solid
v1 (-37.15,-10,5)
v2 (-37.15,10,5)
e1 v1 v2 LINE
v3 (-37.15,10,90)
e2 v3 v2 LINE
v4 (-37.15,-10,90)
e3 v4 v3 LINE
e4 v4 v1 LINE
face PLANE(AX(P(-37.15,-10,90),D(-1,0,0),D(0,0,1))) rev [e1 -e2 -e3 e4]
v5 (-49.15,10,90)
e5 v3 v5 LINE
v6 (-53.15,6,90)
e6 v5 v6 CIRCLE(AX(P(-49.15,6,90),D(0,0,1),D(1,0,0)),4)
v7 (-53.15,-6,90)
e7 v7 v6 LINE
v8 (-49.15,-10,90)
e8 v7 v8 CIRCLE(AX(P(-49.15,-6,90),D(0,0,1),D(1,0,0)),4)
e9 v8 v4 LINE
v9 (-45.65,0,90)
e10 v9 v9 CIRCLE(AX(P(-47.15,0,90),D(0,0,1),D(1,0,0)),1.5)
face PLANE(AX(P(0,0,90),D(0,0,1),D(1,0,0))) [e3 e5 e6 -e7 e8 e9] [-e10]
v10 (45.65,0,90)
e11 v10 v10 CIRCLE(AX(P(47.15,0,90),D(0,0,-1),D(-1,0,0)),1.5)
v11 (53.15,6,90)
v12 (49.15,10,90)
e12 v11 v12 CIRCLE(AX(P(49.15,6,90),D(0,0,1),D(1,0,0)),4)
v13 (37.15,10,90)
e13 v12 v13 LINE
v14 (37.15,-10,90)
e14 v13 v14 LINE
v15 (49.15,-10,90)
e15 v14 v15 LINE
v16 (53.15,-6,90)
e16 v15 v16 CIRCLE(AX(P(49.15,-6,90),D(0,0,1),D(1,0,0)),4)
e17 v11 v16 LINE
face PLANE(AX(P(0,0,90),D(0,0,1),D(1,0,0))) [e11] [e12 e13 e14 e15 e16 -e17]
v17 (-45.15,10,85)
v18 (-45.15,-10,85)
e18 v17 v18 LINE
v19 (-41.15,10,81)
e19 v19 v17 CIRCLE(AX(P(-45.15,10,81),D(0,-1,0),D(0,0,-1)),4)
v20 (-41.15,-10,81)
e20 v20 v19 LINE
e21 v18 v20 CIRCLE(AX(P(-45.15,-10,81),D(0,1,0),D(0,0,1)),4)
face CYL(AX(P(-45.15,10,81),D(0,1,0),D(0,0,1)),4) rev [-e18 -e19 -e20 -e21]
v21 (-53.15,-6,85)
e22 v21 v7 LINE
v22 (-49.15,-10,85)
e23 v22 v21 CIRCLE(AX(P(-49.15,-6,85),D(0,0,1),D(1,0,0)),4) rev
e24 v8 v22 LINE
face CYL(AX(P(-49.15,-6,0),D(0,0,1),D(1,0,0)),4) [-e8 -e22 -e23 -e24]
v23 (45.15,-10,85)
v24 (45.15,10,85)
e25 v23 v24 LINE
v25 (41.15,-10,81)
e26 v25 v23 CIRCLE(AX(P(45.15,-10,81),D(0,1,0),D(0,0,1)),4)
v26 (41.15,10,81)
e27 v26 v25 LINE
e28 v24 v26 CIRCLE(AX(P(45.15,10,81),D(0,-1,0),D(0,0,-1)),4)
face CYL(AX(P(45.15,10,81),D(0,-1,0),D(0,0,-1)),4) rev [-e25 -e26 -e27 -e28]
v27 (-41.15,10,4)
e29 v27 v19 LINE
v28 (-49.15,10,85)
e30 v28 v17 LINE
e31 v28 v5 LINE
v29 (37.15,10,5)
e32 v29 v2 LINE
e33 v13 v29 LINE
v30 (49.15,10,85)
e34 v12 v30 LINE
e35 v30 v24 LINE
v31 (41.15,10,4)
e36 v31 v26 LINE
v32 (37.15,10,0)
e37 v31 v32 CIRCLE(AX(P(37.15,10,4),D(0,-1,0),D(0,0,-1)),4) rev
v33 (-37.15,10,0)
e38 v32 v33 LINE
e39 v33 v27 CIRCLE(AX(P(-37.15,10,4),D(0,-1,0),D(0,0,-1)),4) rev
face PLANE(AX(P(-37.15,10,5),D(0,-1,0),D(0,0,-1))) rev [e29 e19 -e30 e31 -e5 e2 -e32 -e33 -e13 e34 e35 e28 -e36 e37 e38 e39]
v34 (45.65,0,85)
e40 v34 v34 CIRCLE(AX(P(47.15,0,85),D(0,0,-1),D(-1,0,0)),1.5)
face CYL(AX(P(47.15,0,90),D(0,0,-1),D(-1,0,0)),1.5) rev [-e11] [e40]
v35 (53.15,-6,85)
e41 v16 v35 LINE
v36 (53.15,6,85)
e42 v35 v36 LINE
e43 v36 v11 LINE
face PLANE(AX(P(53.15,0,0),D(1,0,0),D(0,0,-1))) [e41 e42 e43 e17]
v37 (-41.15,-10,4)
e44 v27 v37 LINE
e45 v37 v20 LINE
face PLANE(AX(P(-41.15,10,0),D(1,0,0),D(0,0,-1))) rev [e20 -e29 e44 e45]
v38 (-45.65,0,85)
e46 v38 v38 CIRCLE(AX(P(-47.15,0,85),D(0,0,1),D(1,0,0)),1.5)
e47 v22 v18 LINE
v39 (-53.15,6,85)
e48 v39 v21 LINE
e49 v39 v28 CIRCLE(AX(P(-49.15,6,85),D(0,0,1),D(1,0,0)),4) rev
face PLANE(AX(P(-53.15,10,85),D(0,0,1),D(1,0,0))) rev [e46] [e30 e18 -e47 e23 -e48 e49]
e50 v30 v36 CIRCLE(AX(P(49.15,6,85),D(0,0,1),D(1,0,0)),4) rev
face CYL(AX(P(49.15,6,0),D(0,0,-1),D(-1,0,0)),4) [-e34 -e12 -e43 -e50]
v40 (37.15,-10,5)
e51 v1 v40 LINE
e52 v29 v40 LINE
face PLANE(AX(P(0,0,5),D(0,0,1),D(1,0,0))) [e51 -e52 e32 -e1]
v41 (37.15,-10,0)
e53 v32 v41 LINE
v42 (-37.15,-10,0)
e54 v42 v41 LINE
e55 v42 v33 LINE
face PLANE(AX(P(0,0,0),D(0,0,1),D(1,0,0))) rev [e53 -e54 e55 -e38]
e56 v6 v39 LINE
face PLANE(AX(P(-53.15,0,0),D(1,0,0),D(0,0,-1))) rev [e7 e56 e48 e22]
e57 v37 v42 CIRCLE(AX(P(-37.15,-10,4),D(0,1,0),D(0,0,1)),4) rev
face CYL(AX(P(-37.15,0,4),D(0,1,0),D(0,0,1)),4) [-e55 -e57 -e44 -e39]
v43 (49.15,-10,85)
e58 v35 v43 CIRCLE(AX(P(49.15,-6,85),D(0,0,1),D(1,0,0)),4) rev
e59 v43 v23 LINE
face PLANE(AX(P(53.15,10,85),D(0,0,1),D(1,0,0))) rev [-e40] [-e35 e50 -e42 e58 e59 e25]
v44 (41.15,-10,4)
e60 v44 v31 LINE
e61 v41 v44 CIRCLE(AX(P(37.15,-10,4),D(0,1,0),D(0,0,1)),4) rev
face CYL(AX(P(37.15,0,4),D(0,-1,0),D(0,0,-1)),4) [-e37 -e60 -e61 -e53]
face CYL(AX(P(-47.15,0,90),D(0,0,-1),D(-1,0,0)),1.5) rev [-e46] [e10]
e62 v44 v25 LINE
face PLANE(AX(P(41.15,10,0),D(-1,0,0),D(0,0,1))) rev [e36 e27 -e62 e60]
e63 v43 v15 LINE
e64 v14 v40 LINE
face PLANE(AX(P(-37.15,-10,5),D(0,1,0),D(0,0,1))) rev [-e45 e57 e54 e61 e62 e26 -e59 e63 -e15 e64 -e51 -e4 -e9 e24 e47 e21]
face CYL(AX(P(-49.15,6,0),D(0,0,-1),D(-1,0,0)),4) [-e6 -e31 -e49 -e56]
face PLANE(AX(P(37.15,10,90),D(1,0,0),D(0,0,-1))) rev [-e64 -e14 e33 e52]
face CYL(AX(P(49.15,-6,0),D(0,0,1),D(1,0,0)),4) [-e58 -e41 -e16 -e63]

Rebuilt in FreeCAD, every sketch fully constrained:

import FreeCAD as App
import Part
import Sketcher
Q = App.Units.Quantity


def edges_at(feature, points):
    """Names of the edges that pass closest to the given points."""
    edges = feature.Shape.Edges
    near = lambda p: min(range(len(edges)), key=lambda i: edges[i].distToShape(Part.Vertex(*p))[0])
    return sorted({f"Edge{near(p) + 1}" for p in points})


def add_polygon(sketch, points):
    """Adds a closed chain of lines whose ends are joined by coincident constraints."""
    first, n = sketch.GeometryCount, len(points)
    for a, b in zip(points, points[1:] + points[:1]):
        sketch.addGeometry(Part.LineSegment(App.Vector(*a, 0), App.Vector(*b, 0)), False)
    for i in range(n):
        sketch.addConstraint(Sketcher.Constraint("Coincident", first + i, 2, first + (i + 1) % n, 1))

doc = App.newDocument("Part")
params = doc.addObject("Spreadsheet::Sheet", "Params")
for row, (alias, value) in enumerate([
    ("sketch1_height", "20 mm"),
    ("sketch1_width", "74.3 mm"),
    ("pad1_length", "5 mm"),
    ("sketch2_width", "4 mm"),
    ("sketch2_height", "20 mm"),
    ("pad2_length", "85 mm"),
    ("sketch3_width", "4 mm"),
    ("sketch3_height", "20 mm"),
    ("pad3_length", "85 mm"),
    ("sketch4_width", "4 mm"),
    ("sketch4_height", "20 mm"),
    ("pad4_length", "5 mm"),
    ("sketch5_width", "20 mm"),
    ("sketch5_height", "5 mm"),
    ("pad5_length", "12 mm"),
    ("sketch6_diameter", "3 mm"),
    ("sketch7_width", "20 mm"),
    ("sketch7_height", "5 mm"),
    ("pad6_length", "12 mm"),
    ("fillet_radius", "4 mm"),
], start=1):
    params.set(f"A{row}", alias)
    params.set(f"B{row}", "=" + value)
    params.setAlias(f"B{row}", alias)

body = doc.addObject("PartDesign::Body", "Body")

# Sketch on XY plane
sketch1 = doc.addObject("Sketcher::SketchObject", "Sketch")
body.addObject(sketch1)
sketch1.AttachmentSupport = (doc.XY_Plane, [""])
sketch1.MapMode = "FlatFace"
add_polygon(sketch1, [(-37.15, 10), (-37.15, -10), (37.15, -10), (37.15, 10)])  # lines 0-3
sketch1.addConstraint([
    Sketcher.Constraint("Vertical", 0),
    Sketcher.Constraint("Horizontal", 1),
    Sketcher.Constraint("Vertical", 2),
    Sketcher.Constraint("Horizontal", 3),
    Sketcher.Constraint("Symmetric", 0, 2, 2, 2, -1, 1),
    Sketcher.Constraint("DistanceY", 0, 2, 0, 1, Q("20 mm")),
    Sketcher.Constraint("DistanceX", 1, 1, 1, 2, Q("74.3 mm")),
])
sketch1.setExpression("Constraints[9]", "Params.sketch1_height")
sketch1.setExpression("Constraints[10]", "Params.sketch1_width")
pad1 = doc.addObject("PartDesign::Pad", "Pad")
body.addObject(pad1)
pad1.Profile = sketch1
pad1.setExpression("Length", "Params.pad1_length")
body2 = doc.addObject("PartDesign::Body", "Body001")

# Sketch on XY plane
sketch2 = doc.addObject("Sketcher::SketchObject", "Sketch001")
body2.addObject(sketch2)
sketch2.AttachmentSupport = (doc.getObject("XY_Plane001"), [""])
sketch2.MapMode = "FlatFace"
sketch2.AttachmentOffset = App.Placement(App.Vector(0, 0, 5), App.Rotation())
add_polygon(sketch2, [(-41.15, 10), (-41.15, -10), (-37.15, -10), (-37.15, 10)])  # lines 0-3
sketch2.addConstraint([
    Sketcher.Constraint("Vertical", 0),
    Sketcher.Constraint("Horizontal", 1),
    Sketcher.Constraint("Vertical", 2),
    Sketcher.Constraint("Horizontal", 3),
    Sketcher.Constraint("DistanceX", 1, 1, 1, 2, Q("4 mm")),
    Sketcher.Constraint("DistanceY", 0, 2, 0, 1, Q("20 mm")),
    Sketcher.Constraint("DistanceY", 0, 2, -1, 1, Q("10 mm")),
    Sketcher.Constraint("DistanceX", 0, 2, -1, 1, Q("41.15 mm")),
])
sketch2.setExpression("Constraints[8]", "Params.sketch2_width")
sketch2.setExpression("Constraints[9]", "Params.sketch2_height")
pad2 = doc.addObject("PartDesign::Pad", "Pad001")
body2.addObject(pad2)
pad2.Profile = sketch2
pad2.setExpression("Length", "Params.pad2_length")
body3 = doc.addObject("PartDesign::Body", "Body002")

# Sketch on XY plane
sketch3 = doc.addObject("Sketcher::SketchObject", "Sketch002")
body3.addObject(sketch3)
sketch3.AttachmentSupport = (doc.getObject("XY_Plane002"), [""])
sketch3.MapMode = "FlatFace"
sketch3.AttachmentOffset = App.Placement(App.Vector(0, 0, 5), App.Rotation())
add_polygon(sketch3, [(37.15, 10), (37.15, -10), (41.15, -10), (41.15, 10)])  # lines 0-3
sketch3.addConstraint([
    Sketcher.Constraint("Vertical", 0),
    Sketcher.Constraint("Horizontal", 1),
    Sketcher.Constraint("Vertical", 2),
    Sketcher.Constraint("Horizontal", 3),
    Sketcher.Constraint("DistanceX", 1, 1, 1, 2, Q("4 mm")),
    Sketcher.Constraint("DistanceY", 0, 2, 0, 1, Q("20 mm")),
    Sketcher.Constraint("DistanceY", 0, 2, -1, 1, Q("10 mm")),
    Sketcher.Constraint("DistanceX", -1, 1, 0, 2, Q("37.15 mm")),
])
sketch3.setExpression("Constraints[8]", "Params.sketch3_width")
sketch3.setExpression("Constraints[9]", "Params.sketch3_height")
pad3 = doc.addObject("PartDesign::Pad", "Pad002")
body3.addObject(pad3)
pad3.Profile = sketch3
pad3.setExpression("Length", "Params.pad3_length")
body.AllowCompound = True
doc.recompute()

boolean = doc.addObject("PartDesign::Boolean", "Boolean")
body.addObject(boolean)
boolean.Type = "Fuse"
boolean.addObjects([body2])
doc.recompute()

boolean2 = doc.addObject("PartDesign::Boolean", "Boolean001")
body.addObject(boolean2)
boolean2.Type = "Fuse"
boolean2.addObjects([body3])

# Sketch on XY plane
sketch4 = doc.addObject("Sketcher::SketchObject", "Sketch003")
body.addObject(sketch4)
sketch4.AttachmentSupport = (doc.XY_Plane, [""])
sketch4.MapMode = "FlatFace"
sketch4.AttachmentOffset = App.Placement(App.Vector(0, 0, 5), App.Rotation())
add_polygon(sketch4, [(41.15, 10), (41.15, -10), (37.15, -10), (37.15, 10)])  # lines 0-3
add_polygon(sketch4, [(-37.15, 10), (-37.15, -10), (-41.15, -10), (-41.15, 10)])  # lines 4-7
sketch4.addConstraint([
    Sketcher.Constraint("Vertical", 0),
    Sketcher.Constraint("Horizontal", 1),
    Sketcher.Constraint("Vertical", 2),
    Sketcher.Constraint("Horizontal", 3),
    Sketcher.Constraint("Vertical", 4),
    Sketcher.Constraint("Horizontal", 5),
    Sketcher.Constraint("Vertical", 6),
    Sketcher.Constraint("Horizontal", 7),
    Sketcher.Constraint("Symmetric", 2, 2, 4, 2, -1, 1),
    Sketcher.Constraint("Symmetric", 0, 2, 6, 2, -1, 1),
    Sketcher.Constraint("Horizontal", 1, 2, 4, 2),
    Sketcher.Constraint("DistanceX", 1, 2, 1, 1, Q("4 mm")),
    Sketcher.Constraint("DistanceY", 0, 2, 0, 1, Q("20 mm")),
    Sketcher.Constraint("DistanceX", 4, 2, 1, 2, Q("74.3 mm")),
])
sketch4.setExpression("Constraints[19]", "Params.sketch4_width")
sketch4.setExpression("Constraints[20]", "Params.sketch4_height")
pad4 = doc.addObject("PartDesign::Pad", "Pad003")
body.addObject(pad4)
pad4.Profile = sketch4
pad4.setExpression("Length", "Params.pad4_length")
pad4.Reversed = True

# Sketch on YZ plane
sketch5 = doc.addObject("Sketcher::SketchObject", "Sketch004")
body.addObject(sketch5)
sketch5.AttachmentSupport = (doc.YZ_Plane, [""])
sketch5.MapMode = "FlatFace"
sketch5.AttachmentOffset = App.Placement(App.Vector(0, 0, 41.15), App.Rotation())
add_polygon(sketch5, [(10, 90), (-10, 90), (-10, 85), (10, 85)])  # lines 0-3
sketch5.addConstraint([
    Sketcher.Constraint("Horizontal", 0),
    Sketcher.Constraint("Vertical", 1),
    Sketcher.Constraint("Horizontal", 2),
    Sketcher.Constraint("Vertical", 3),
    Sketcher.Constraint("DistanceX", 0, 2, 0, 1, Q("20 mm")),
    Sketcher.Constraint("DistanceY", 1, 2, 1, 1, Q("5 mm")),
    Sketcher.Constraint("DistanceX", 0, 2, -1, 1, Q("10 mm")),
    Sketcher.Constraint("DistanceY", -1, 1, 0, 2, Q("90 mm")),
])
sketch5.setExpression("Constraints[8]", "Params.sketch5_width")
sketch5.setExpression("Constraints[9]", "Params.sketch5_height")
pad5 = doc.addObject("PartDesign::Pad", "Pad004")
body.addObject(pad5)
pad5.Profile = sketch5
pad5.setExpression("Length", "Params.pad5_length")

# Sketch on XY plane
sketch6 = doc.addObject("Sketcher::SketchObject", "Sketch005")
body.addObject(sketch6)
sketch6.AttachmentSupport = (doc.XY_Plane, [""])
sketch6.MapMode = "FlatFace"
sketch6.AttachmentOffset = App.Placement(App.Vector(0, 0, 85), App.Rotation())
sketch6.addGeometry(Part.Circle(App.Vector(47.15, 0, 0), App.Vector(0, 0, 1), 1.5), False)
sketch6.addConstraint([
    Sketcher.Constraint("PointOnObject", 0, 3, -1),
    Sketcher.Constraint("Diameter", 0, Q("3 mm")),
    Sketcher.Constraint("DistanceX", -1, 1, 0, 3, Q("47.15 mm")),
])
sketch6.setExpression("Constraints[1]", "Params.sketch6_diameter")
pocket1 = doc.addObject("PartDesign::Pocket", "Pocket")
body.addObject(pocket1)
pocket1.Profile = sketch6
pocket1.Type = "ThroughAll"
pocket1.Reversed = True

# Sketch on YZ plane
sketch7 = doc.addObject("Sketcher::SketchObject", "Sketch006")
body.addObject(sketch7)
sketch7.AttachmentSupport = (doc.YZ_Plane, [""])
sketch7.MapMode = "FlatFace"
sketch7.AttachmentOffset = App.Placement(App.Vector(0, 0, -41.15), App.Rotation())
add_polygon(sketch7, [(10, 85), (-10, 85), (-10, 90), (10, 90)])  # lines 0-3
sketch7.addConstraint([
    Sketcher.Constraint("Horizontal", 0),
    Sketcher.Constraint("Vertical", 1),
    Sketcher.Constraint("Horizontal", 2),
    Sketcher.Constraint("Vertical", 3),
    Sketcher.Constraint("DistanceX", 0, 2, 0, 1, Q("20 mm")),
    Sketcher.Constraint("DistanceY", 1, 1, 1, 2, Q("5 mm")),
    Sketcher.Constraint("DistanceX", 0, 2, -1, 1, Q("10 mm")),
    Sketcher.Constraint("DistanceY", -1, 1, 0, 2, Q("85 mm")),
])
sketch7.setExpression("Constraints[8]", "Params.sketch7_width")
sketch7.setExpression("Constraints[9]", "Params.sketch7_height")
pad6 = doc.addObject("PartDesign::Pad", "Pad005")
body.addObject(pad6)
pad6.Profile = sketch7
pad6.setExpression("Length", "Params.pad6_length")
pad6.Reversed = True
doc.recompute()

mirrored = doc.addObject("PartDesign::Mirrored", "Mirrored")
body.addObject(mirrored)
mirrored.Originals = [pocket1]
mirrored.MirrorPlane = (doc.YZ_Plane, [""])
body.Tip = mirrored
doc.recompute()

fillet = doc.addObject("PartDesign::Fillet", "Fillet")
body.addObject(fillet)
fillet.Base = (mirrored, edges_at(mirrored, [
    (-41.15, 0, 85),
    (-53.15, 10, 87.5),
    (-53.15, -10, 87.5),
    (41.15, 0, 0),
    (-41.15, 0, 0),
    (41.15, 0, 85),
    (53.15, -10, 87.5),
    (53.15, 10, 87.5),
]))
fillet.setExpression("Radius", "Params.fillet_radius")

doc.recompute()
